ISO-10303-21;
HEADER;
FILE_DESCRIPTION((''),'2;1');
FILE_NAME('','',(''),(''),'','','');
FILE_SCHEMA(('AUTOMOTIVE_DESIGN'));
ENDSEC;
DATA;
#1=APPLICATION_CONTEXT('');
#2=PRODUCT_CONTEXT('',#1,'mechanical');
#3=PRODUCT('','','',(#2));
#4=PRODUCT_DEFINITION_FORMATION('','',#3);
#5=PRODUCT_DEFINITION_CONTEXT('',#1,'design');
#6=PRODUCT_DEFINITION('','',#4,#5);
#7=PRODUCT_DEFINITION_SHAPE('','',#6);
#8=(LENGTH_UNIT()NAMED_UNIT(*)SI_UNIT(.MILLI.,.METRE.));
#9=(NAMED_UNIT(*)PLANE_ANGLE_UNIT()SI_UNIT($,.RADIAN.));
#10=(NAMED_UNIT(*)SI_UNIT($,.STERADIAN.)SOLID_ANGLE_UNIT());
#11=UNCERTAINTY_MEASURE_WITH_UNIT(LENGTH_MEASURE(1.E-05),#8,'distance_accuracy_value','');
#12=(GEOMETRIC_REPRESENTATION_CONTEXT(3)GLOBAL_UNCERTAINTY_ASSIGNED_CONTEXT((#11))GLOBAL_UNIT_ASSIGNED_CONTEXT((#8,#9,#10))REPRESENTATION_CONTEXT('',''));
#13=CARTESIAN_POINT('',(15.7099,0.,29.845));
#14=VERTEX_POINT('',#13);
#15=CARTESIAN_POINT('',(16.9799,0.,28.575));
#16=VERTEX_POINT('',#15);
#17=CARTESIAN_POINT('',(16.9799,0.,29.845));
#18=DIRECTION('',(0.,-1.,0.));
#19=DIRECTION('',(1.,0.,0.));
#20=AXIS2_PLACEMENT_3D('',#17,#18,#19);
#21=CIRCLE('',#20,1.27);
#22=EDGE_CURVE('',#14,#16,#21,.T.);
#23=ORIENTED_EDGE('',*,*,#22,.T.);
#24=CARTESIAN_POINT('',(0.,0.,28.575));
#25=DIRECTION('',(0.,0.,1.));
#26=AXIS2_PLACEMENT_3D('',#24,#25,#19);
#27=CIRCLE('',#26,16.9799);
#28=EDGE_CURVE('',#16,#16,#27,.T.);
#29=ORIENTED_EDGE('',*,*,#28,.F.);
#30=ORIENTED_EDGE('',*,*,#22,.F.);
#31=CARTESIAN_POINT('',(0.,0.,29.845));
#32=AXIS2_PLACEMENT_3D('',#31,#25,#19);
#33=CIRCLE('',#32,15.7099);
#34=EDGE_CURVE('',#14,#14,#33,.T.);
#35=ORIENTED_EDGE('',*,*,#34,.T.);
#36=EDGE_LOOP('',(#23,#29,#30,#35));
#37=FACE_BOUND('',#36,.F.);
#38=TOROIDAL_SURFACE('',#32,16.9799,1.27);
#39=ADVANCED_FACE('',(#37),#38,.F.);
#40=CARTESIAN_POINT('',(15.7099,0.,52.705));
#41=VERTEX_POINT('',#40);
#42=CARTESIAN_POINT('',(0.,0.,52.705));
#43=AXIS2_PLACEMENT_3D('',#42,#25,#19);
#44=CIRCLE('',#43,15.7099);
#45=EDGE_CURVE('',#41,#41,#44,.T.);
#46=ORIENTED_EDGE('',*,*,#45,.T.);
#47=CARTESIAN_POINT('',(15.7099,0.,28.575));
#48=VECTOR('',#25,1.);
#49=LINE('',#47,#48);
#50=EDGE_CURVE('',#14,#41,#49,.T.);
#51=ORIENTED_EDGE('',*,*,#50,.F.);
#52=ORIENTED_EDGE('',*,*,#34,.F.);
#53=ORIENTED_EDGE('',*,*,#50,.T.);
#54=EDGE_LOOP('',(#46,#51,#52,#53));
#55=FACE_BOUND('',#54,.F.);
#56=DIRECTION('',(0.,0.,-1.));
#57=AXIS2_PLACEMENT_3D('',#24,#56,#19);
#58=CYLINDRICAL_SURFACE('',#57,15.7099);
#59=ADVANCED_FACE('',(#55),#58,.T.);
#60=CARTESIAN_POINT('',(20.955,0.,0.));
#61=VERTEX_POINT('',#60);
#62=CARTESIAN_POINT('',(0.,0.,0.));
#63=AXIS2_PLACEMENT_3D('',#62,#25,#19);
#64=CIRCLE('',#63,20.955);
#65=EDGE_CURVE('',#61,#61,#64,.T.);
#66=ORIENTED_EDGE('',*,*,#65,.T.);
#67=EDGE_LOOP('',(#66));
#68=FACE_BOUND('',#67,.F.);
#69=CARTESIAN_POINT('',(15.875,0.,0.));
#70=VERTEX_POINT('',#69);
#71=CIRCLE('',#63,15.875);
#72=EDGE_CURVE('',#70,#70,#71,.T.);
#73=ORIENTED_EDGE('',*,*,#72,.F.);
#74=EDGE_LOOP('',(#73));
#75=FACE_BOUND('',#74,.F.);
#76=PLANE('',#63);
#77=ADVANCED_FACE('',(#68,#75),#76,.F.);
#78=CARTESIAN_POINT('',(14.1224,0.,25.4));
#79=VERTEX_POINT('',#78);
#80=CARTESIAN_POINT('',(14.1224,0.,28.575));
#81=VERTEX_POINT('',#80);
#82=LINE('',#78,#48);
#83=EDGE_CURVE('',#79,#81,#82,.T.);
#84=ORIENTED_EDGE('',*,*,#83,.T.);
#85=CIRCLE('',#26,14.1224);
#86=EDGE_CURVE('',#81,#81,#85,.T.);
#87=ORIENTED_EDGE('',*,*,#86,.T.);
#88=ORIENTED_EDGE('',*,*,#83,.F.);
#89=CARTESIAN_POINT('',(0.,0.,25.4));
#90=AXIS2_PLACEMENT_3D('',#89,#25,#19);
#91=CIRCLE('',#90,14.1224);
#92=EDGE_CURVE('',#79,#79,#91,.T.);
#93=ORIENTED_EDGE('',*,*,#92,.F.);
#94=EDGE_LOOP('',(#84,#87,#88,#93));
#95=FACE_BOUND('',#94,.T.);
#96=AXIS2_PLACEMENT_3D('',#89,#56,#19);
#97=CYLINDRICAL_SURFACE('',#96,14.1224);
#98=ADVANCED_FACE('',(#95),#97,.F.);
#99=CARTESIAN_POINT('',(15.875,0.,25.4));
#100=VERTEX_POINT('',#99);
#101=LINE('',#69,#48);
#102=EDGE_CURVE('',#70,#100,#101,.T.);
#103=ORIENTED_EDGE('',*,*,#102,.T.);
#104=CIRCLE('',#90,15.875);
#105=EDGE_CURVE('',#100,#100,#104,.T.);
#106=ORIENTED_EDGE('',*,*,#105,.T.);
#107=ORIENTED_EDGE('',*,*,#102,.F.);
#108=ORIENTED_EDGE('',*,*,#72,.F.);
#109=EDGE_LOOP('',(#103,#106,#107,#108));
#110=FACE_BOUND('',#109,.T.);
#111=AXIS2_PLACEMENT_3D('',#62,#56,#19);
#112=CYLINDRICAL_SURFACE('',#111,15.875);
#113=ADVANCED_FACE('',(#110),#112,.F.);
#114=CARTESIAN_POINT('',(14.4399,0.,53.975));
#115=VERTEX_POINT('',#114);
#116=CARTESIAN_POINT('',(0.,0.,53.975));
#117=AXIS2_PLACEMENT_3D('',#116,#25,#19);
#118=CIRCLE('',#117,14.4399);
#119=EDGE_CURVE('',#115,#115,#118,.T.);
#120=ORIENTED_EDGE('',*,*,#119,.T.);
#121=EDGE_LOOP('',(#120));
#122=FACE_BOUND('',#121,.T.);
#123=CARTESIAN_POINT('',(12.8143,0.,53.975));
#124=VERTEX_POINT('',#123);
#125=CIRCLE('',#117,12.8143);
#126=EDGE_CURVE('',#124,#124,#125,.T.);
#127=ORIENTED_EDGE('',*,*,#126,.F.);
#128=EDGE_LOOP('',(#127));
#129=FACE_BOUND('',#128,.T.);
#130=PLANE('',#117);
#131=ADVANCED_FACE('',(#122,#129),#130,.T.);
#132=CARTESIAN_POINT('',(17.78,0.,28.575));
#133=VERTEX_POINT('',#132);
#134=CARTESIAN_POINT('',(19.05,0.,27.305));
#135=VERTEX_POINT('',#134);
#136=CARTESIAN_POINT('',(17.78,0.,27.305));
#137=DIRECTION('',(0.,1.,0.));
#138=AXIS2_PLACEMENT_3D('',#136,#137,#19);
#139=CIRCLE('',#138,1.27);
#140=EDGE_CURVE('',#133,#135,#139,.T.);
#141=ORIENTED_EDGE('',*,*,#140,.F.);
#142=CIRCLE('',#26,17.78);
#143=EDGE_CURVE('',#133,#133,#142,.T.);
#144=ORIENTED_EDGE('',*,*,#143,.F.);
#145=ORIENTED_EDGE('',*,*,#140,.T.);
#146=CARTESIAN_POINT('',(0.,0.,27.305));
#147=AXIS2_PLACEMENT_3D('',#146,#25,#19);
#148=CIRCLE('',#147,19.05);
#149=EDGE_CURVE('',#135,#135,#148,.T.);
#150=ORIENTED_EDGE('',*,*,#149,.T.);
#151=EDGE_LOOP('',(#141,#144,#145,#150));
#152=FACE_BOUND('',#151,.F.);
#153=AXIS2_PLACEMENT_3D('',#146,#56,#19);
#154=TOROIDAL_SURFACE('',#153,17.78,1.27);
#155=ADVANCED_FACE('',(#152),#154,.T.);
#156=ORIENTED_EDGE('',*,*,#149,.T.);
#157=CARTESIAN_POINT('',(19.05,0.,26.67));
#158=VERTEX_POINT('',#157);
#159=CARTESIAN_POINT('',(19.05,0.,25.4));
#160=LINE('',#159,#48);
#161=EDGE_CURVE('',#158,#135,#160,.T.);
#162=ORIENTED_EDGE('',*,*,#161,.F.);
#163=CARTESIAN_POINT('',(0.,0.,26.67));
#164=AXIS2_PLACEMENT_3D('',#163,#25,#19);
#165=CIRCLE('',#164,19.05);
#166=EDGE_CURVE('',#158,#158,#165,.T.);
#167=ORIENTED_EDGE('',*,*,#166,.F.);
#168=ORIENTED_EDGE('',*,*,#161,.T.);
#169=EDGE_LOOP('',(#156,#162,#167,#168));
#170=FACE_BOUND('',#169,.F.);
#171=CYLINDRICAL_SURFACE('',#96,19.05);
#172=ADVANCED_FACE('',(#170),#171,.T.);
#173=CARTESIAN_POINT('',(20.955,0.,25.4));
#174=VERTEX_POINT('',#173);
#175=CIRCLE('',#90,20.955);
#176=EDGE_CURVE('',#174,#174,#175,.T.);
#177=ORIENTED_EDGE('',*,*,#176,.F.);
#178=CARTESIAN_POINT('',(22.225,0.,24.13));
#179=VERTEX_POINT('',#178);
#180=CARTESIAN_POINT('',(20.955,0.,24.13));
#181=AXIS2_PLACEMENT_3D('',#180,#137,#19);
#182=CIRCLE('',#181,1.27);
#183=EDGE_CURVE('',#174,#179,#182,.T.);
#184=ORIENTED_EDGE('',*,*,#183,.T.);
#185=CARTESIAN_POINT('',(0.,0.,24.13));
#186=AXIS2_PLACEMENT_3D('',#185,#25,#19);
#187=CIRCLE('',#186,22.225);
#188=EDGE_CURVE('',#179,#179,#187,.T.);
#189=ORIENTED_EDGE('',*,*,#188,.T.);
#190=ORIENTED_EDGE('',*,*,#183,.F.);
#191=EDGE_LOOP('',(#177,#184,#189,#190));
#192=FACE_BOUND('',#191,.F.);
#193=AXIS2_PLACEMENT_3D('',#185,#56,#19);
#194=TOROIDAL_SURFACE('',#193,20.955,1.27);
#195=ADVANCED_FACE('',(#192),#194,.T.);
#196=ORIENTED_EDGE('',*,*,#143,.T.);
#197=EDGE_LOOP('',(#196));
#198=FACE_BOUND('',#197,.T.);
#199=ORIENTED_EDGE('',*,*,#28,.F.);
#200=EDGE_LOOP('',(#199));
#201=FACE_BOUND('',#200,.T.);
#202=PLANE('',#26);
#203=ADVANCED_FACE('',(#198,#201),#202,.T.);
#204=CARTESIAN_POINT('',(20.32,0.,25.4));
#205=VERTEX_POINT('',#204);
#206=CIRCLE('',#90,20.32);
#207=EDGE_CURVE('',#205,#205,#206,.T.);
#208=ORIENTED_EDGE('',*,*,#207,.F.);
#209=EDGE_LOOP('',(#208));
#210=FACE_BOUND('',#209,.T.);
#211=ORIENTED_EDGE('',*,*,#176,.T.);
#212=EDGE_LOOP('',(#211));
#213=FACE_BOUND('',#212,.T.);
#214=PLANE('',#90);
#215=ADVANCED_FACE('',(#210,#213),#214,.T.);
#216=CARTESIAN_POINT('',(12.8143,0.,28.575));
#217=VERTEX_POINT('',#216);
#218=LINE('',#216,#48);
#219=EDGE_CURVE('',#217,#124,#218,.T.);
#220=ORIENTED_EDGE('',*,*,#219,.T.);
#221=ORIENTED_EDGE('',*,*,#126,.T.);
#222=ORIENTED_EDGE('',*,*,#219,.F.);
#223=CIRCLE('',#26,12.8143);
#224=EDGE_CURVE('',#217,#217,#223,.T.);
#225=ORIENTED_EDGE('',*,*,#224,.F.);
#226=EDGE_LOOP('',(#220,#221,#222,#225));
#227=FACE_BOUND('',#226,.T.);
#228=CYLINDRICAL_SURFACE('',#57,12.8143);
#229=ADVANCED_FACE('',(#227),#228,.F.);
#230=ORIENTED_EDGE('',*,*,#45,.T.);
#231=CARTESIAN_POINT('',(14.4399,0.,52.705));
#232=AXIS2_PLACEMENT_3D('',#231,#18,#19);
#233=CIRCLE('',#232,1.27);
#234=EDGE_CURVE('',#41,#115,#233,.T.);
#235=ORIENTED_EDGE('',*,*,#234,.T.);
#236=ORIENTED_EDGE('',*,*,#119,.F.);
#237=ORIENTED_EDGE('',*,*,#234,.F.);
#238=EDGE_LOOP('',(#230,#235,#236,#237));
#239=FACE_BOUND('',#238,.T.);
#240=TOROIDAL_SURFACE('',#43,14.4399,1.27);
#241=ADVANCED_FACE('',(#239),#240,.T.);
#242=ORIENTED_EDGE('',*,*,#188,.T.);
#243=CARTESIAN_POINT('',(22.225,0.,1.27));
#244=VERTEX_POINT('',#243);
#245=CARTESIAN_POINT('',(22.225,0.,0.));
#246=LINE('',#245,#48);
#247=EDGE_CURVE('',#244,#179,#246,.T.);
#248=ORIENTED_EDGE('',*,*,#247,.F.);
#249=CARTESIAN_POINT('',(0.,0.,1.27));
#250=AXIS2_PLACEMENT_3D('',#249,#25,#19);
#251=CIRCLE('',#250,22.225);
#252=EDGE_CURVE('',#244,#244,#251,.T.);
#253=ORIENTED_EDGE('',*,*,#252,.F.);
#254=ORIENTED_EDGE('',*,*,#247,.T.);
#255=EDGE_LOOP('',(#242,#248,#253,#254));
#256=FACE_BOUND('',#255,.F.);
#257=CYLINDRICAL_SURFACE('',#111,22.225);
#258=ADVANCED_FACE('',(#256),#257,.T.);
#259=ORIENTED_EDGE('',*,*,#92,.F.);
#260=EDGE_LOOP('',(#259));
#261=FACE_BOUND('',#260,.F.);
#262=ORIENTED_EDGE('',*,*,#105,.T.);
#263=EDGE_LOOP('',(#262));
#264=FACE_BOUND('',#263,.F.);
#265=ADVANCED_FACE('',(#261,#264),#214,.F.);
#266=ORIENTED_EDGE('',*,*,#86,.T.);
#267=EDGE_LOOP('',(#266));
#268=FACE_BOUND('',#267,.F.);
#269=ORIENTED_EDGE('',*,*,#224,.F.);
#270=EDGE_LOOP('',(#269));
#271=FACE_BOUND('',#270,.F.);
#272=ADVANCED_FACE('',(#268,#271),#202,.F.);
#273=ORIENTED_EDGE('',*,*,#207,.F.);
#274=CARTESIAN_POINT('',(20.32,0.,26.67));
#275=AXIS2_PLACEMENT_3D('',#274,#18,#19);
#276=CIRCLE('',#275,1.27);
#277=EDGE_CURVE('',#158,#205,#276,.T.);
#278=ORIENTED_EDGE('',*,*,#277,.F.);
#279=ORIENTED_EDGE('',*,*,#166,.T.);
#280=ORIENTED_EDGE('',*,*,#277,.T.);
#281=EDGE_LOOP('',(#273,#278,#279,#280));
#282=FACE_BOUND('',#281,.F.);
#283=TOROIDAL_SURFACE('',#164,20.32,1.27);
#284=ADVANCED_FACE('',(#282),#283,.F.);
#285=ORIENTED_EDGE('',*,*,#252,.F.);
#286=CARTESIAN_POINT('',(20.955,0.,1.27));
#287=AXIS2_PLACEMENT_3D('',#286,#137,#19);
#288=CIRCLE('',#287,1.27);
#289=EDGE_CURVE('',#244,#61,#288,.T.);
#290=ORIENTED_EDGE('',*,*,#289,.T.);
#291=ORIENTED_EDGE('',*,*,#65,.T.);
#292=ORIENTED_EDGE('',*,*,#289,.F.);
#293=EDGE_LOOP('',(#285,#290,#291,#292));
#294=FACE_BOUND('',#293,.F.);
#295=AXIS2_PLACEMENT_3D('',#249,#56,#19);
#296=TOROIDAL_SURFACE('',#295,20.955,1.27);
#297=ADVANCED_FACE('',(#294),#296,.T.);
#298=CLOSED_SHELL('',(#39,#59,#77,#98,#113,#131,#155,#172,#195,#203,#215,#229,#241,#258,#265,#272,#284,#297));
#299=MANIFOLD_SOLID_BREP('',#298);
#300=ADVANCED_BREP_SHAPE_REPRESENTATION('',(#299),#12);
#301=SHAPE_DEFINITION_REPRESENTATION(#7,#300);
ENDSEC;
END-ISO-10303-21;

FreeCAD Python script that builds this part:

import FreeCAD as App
import Part
import Sketcher
from FreeCAD import Vector
Q = App.Units.Quantity


def edges_at(feature, points):
    """Names of the edges that pass closest to the given points."""
    edges = feature.Shape.Edges
    near = lambda p: min(range(len(edges)), key=lambda i: edges[i].distToShape(Part.Vertex(*p))[0])
    return sorted({f"Edge{near(p) + 1}" for p in points})

doc = App.newDocument("Part")
body = doc.addObject("PartDesign::Body", "Body")

# Sketch on XY plane
sketch1 = body.newObject("Sketcher::SketchObject", "Sketch")
sketch1.AttachmentSupport = (doc.getObject("XY_Plane"), [""])
sketch1.MapMode = "FlatFace"
sketch1.addGeometry([
    Part.Circle(Vector(0, 0, 0), Vector(0, 0, 1), 22),
    Part.Circle(Vector(0, 0, 0), Vector(0, 0, 1), 16),
], False)
sketch1.addConstraint([
    Sketcher.Constraint("Coincident", 0, 3, -1, 1),
    Sketcher.Constraint("Coincident", 1, 3, -1, 1),
    Sketcher.Constraint("Diameter", 0, Q("1.75 in")),
    Sketcher.Constraint("Diameter", 1, Q("1.25 in")),
])
pad1 = body.newObject("PartDesign::Pad", "Pad")
pad1.Profile = sketch1
pad1.Length = Q("1 in")

# Sketch on XY plane
sketch2 = body.newObject("Sketcher::SketchObject", "Sketch001")
sketch2.AttachmentSupport = (doc.getObject("XY_Plane"), [""])
sketch2.MapMode = "FlatFace"
sketch2.AttachmentOffset = App.Placement(Vector(0, 0, 1 * 25.4), App.Rotation())
sketch2.addGeometry([
    Part.Circle(Vector(0, 0, 0), Vector(0, 0, 1), 19),
    Part.Circle(Vector(0, 0, 0), Vector(0, 0, 1), 14),
], False)
sketch2.addConstraint([
    Sketcher.Constraint("Coincident", 0, 3, -1, 1),
    Sketcher.Constraint("Coincident", 1, 3, -1, 1),
    Sketcher.Constraint("Diameter", 0, Q("1.5 in")),
    Sketcher.Constraint("Diameter", 1, Q("1.112 in")),
])
pad2 = body.newObject("PartDesign::Pad", "Pad001")
pad2.Profile = sketch2
pad2.Length = Q("0.125 in")

# Sketch on XY plane
sketch3 = body.newObject("Sketcher::SketchObject", "Sketch002")
sketch3.AttachmentSupport = (doc.getObject("XY_Plane"), [""])
sketch3.MapMode = "FlatFace"
sketch3.AttachmentOffset = App.Placement(Vector(0, 0, 1.125 * 25.4), App.Rotation())
sketch3.addGeometry([
    Part.Circle(Vector(0, 0, 0), Vector(0, 0, 1), 16),
    Part.Circle(Vector(0, 0, 0), Vector(0, 0, 1), 13),
], False)
sketch3.addConstraint([
    Sketcher.Constraint("Coincident", 0, 3, -1, 1),
    Sketcher.Constraint("Coincident", 1, 3, -1, 1),
    Sketcher.Constraint("Diameter", 0, Q("1.237 in")),
    Sketcher.Constraint("Diameter", 1, Q("1.009 in")),
])
pad3 = body.newObject("PartDesign::Pad", "Pad002")
pad3.Profile = sketch3
pad3.Length = Q("1 in")
doc.recompute()

fillet = body.newObject("PartDesign::Fillet", "Fillet")
fillet.Base = (pad3, edges_at(pad3, [
    (-15.71, 0, 53.975),
    (-19.05, 0, 28.575),
    (-22.225, 0, 25.4),
    (-15.71, 0, 28.575),
    (-22.225, 0, 0),
    (-19.05, 0, 25.4),
]))
fillet.Radius = Q("0.05 in")

doc.recompute()
